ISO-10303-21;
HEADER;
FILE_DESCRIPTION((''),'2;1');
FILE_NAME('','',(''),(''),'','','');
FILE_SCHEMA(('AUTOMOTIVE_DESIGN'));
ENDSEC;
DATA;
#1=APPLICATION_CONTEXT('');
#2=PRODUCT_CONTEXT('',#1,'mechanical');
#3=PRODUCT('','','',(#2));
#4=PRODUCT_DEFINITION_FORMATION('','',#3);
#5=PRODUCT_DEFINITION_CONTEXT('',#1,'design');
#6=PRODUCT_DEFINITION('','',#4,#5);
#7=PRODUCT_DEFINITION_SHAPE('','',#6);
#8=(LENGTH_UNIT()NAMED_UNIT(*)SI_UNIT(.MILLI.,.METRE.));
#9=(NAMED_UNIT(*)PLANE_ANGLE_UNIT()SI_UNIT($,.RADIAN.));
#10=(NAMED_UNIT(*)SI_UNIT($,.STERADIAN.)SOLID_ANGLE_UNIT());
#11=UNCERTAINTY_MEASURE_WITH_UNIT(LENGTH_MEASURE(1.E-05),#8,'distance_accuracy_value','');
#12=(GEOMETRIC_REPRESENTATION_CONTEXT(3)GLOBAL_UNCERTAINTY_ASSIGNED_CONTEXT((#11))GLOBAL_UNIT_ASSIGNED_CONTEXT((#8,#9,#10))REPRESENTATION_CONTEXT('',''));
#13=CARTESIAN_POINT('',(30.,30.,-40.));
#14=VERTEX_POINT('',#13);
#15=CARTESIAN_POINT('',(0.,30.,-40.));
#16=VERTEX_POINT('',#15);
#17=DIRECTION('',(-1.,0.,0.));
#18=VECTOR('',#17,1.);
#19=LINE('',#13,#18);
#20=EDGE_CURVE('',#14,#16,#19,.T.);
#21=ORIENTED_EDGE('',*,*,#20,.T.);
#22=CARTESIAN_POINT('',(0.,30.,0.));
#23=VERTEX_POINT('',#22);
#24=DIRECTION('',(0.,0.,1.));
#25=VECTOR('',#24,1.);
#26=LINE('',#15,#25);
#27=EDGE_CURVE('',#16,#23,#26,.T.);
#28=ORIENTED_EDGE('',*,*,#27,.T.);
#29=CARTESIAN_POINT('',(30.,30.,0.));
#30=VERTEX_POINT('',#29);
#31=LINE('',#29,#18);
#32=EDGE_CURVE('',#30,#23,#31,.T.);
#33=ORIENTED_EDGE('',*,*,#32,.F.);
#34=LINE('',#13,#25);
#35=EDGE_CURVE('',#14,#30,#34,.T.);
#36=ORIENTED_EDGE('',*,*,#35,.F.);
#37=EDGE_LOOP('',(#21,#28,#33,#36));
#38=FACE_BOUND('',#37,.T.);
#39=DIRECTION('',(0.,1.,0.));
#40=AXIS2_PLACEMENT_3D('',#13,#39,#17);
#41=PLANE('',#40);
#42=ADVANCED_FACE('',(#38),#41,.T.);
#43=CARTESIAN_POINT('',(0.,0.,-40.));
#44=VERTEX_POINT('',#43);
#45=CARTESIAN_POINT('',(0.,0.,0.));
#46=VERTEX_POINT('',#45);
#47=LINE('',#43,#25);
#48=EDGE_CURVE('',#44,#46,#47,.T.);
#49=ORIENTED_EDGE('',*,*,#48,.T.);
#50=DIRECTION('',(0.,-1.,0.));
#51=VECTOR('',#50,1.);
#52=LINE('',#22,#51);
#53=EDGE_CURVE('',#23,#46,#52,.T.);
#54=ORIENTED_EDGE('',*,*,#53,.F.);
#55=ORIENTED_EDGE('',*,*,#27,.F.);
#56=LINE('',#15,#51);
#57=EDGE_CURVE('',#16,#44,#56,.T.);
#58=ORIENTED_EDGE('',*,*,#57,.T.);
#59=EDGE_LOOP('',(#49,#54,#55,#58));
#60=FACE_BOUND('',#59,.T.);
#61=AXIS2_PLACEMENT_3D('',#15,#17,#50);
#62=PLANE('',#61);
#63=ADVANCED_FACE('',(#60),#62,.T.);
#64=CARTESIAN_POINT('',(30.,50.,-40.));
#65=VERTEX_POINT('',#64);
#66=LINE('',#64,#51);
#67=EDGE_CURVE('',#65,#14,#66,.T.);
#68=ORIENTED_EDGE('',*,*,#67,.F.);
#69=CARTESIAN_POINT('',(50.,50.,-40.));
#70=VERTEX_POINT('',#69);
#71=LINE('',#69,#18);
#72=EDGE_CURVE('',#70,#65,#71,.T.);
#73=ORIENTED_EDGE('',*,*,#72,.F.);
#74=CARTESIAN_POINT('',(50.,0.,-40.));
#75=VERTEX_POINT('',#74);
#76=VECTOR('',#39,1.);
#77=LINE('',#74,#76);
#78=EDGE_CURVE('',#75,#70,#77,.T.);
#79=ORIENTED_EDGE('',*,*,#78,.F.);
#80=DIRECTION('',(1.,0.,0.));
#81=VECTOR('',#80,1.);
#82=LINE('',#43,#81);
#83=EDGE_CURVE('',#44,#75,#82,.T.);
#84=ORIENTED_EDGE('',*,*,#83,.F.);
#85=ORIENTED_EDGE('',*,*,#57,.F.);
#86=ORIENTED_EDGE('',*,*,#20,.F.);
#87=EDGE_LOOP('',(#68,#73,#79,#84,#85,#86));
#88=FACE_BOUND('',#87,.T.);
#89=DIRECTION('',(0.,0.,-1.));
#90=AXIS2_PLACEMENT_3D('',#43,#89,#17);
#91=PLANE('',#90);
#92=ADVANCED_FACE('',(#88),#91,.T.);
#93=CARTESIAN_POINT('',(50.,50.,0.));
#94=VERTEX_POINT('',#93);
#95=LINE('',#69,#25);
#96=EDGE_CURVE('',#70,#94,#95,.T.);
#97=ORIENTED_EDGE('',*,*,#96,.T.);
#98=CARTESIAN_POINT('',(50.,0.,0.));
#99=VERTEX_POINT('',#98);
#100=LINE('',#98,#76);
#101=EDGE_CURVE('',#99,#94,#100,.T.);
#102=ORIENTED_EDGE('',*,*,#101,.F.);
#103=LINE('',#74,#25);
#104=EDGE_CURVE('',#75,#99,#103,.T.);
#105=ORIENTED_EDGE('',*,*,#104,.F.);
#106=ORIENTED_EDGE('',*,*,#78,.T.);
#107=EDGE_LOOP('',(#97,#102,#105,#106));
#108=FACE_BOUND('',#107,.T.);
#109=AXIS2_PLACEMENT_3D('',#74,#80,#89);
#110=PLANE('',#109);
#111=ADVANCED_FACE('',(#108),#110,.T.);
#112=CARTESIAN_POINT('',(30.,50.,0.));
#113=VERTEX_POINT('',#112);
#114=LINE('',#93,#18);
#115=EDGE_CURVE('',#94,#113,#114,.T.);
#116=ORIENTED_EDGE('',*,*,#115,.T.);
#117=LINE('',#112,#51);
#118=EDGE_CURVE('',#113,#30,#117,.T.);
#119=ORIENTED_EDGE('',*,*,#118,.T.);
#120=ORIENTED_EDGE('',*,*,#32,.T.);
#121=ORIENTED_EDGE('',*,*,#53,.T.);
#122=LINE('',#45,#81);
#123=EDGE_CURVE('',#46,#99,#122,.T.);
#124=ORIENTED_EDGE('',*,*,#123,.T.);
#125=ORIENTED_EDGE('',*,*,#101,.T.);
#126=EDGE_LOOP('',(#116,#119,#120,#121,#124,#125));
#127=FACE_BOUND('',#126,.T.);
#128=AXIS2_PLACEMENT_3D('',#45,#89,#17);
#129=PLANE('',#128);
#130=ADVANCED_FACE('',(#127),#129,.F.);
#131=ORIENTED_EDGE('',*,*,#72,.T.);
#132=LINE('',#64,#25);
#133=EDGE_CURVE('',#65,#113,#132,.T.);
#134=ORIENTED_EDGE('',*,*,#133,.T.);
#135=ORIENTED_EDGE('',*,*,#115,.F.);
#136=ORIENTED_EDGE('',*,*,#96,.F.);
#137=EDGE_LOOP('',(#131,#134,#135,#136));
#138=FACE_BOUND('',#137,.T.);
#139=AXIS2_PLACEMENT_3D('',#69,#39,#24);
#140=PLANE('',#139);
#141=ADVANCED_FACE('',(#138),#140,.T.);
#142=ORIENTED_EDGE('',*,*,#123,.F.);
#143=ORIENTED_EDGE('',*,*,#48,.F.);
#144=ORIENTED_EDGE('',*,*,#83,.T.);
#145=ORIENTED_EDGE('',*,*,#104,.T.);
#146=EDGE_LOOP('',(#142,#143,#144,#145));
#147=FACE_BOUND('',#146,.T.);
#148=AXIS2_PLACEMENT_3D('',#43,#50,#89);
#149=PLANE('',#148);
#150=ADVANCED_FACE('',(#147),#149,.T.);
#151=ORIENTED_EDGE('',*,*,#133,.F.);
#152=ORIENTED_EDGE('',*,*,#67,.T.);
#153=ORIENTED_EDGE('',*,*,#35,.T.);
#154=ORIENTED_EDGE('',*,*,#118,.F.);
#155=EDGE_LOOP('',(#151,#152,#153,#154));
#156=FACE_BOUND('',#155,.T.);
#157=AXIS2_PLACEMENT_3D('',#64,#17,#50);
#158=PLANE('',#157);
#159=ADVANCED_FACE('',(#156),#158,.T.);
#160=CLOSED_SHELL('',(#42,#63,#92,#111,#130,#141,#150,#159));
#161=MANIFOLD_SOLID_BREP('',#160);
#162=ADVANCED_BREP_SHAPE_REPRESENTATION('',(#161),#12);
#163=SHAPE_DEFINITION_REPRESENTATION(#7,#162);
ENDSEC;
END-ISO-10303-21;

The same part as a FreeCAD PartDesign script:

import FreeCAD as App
import Part
import Sketcher
Q = App.Units.Quantity


def add_polygon(sketch, points):
    """Adds a closed chain of lines whose ends are joined by coincident constraints."""
    first, n = sketch.GeometryCount, len(points)
    for a, b in zip(points, points[1:] + points[:1]):
        sketch.addGeometry(Part.LineSegment(App.Vector(*a, 0), App.Vector(*b, 0)), False)
    for i in range(n):
        sketch.addConstraint(Sketcher.Constraint("Coincident", first + i, 2, first + (i + 1) % n, 1))

doc = App.newDocument("Part")
params = doc.addObject("Spreadsheet::Sheet", "Params")
for row, (alias, value) in enumerate([
    ("sketch1_width", "50 mm"),
    ("sketch1_width2", "20 mm"),
    ("pad1_length", "40 mm"),
], start=1):
    params.set(f"A{row}", alias)
    params.set(f"B{row}", "=" + value)
    params.setAlias(f"B{row}", alias)

body = doc.addObject("PartDesign::Body", "Body")

sketch1 = doc.addObject("Sketcher::SketchObject", "Sketch")
body.addObject(sketch1)
sketch1.AttachmentSupport = (doc.XY_Plane, [""])
sketch1.MapMode = "FlatFace"
add_polygon(sketch1, [(0, 0), (50, 0), (50, 50), (30, 50), (30, 30), (0, 30)])
sketch1.addConstraint([
    Sketcher.Constraint("Horizontal", 0),
    Sketcher.Constraint("Vertical", 1),
    Sketcher.Constraint("Horizontal", 2),
    Sketcher.Constraint("Vertical", 3),
    Sketcher.Constraint("Horizontal", 4),
    Sketcher.Constraint("Vertical", 5),
    Sketcher.Constraint("Coincident", 5, 2, -1, 1),
    Sketcher.Constraint("Equal", 0, 1),
    Sketcher.Constraint("Equal", 2, 3),
    Sketcher.Constraint("DistanceX", 0, 1, 0, 2, Q("50 mm")),
    Sketcher.Constraint("DistanceX", 2, 2, 2, 1, Q("20 mm")),
])
sketch1.setExpression("Constraints[15]", "Params.sketch1_width")
sketch1.setExpression("Constraints[16]", "Params.sketch1_width2")
pad1 = doc.addObject("PartDesign::Pad", "Pad")
body.addObject(pad1)
pad1.Profile = sketch1
pad1.setExpression("Length", "Params.pad1_length")
pad1.Reversed = True

doc.recompute()
